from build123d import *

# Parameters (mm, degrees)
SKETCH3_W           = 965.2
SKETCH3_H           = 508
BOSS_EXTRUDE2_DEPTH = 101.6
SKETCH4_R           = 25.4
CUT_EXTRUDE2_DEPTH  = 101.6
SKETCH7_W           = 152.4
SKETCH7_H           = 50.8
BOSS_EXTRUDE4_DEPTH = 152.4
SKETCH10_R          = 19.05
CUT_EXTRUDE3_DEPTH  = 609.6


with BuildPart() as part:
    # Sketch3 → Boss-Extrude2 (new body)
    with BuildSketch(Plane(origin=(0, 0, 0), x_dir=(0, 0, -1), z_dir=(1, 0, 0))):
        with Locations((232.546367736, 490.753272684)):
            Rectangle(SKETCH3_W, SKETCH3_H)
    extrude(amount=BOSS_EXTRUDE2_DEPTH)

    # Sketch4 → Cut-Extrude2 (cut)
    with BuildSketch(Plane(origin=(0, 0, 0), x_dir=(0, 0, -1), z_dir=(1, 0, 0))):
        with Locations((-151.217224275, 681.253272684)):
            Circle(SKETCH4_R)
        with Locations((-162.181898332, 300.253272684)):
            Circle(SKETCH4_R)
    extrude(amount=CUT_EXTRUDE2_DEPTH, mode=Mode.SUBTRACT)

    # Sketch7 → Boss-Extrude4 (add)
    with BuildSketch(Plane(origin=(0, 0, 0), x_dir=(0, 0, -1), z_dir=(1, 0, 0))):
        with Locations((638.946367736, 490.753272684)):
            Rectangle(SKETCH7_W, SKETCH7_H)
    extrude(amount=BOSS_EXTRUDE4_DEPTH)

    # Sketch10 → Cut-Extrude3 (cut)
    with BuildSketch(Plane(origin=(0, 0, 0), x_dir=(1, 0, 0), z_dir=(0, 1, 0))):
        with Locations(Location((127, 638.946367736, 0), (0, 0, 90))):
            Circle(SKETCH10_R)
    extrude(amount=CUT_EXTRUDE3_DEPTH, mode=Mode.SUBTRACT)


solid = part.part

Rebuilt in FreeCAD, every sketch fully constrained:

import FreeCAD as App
import Part
import Sketcher
Q = App.Units.Quantity

doc = App.newDocument("Part")
params = doc.addObject("Spreadsheet::Sheet", "Params")
for row, (alias, value) in enumerate([
    ("sketch1_width", "20 in"),
    ("sketch1_height", "38 in"),
    ("pad1_length", "4 in"),
    ("sketch2_diameter", "2 in"),
    ("pocket1_length", "4 in"),
    ("sketch3_width", "2 in"),
    ("sketch3_height", "6 in"),
    ("pad2_length", "6 in"),
    ("sketch4_diameter", "1.5 in"),
    ("pocket2_length", "24 in"),
], start=1):
    params.set(f"A{row}", alias)
    params.set(f"B{row}", "=" + value)
    params.setAlias(f"B{row}", alias)

body = doc.addObject("PartDesign::Body", "Body")

sketch1 = body.newObject("Sketcher::SketchObject", "Sketch")
sketch1.AttachmentSupport = (doc.getObject("YZ_Plane"), [""])
sketch1.MapMode = "FlatFace"
sketch1.addGeometry(Part.LineSegment(App.Vector(745, 250, 0), App.Vector(237, 250, 0)), False)
sketch1.addGeometry(Part.LineSegment(App.Vector(237, 250, 0), App.Vector(237, -715, 0)), False)
sketch1.addGeometry(Part.LineSegment(App.Vector(237, -715, 0), App.Vector(745, -715, 0)), False)
sketch1.addGeometry(Part.LineSegment(App.Vector(745, -715, 0), App.Vector(745, 250, 0)), False)
sketch1.addConstraint(Sketcher.Constraint("Coincident", 0, 2, 1, 1))
sketch1.addConstraint(Sketcher.Constraint("Coincident", 1, 2, 2, 1))
sketch1.addConstraint(Sketcher.Constraint("Coincident", 2, 2, 3, 1))
sketch1.addConstraint(Sketcher.Constraint("Coincident", 3, 2, 0, 1))
sketch1.addConstraint(Sketcher.Constraint("Horizontal", 0))
sketch1.addConstraint(Sketcher.Constraint("Vertical", 1))
sketch1.addConstraint(Sketcher.Constraint("Horizontal", 2))
sketch1.addConstraint(Sketcher.Constraint("Vertical", 3))
sketch1.addConstraint(Sketcher.Constraint("DistanceX", 0, 2, 0, 1, Q("20 in")))
sketch1.addConstraint(Sketcher.Constraint("DistanceY", 1, 2, 1, 1, Q("38 in")))
sketch1.addConstraint(Sketcher.Constraint("DistanceX", -1, 1, 0, 2, Q("236.753273 mm")))
sketch1.addConstraint(Sketcher.Constraint("DistanceY", -1, 1, 0, 2, Q("250.053632 mm")))
sketch1.setExpression("Constraints[8]", "Params.sketch1_width")
sketch1.setExpression("Constraints[9]", "Params.sketch1_height")
pad1 = body.newObject("PartDesign::Pad", "Pad")
pad1.Profile = sketch1
pad1.setExpression("Length", "Params.pad1_length")

sketch2 = body.newObject("Sketcher::SketchObject", "Sketch001")
sketch2.AttachmentSupport = (doc.getObject("YZ_Plane"), [""])
sketch2.MapMode = "FlatFace"
sketch2.addGeometry(Part.Circle(App.Vector(681, 151, 0), App.Vector(0, 0, 1), 25), False)
sketch2.addGeometry(Part.Circle(App.Vector(300, 162, 0), App.Vector(0, 0, 1), 25), False)
sketch2.addConstraint(Sketcher.Constraint("Equal", 0, 1))
sketch2.addConstraint(Sketcher.Constraint("Diameter", 0, Q("2 in")))
sketch2.addConstraint(Sketcher.Constraint("DistanceX", 1, 3, 0, 3, Q("15 in")))
sketch2.addConstraint(Sketcher.Constraint("DistanceY", -1, 1, 1, 3, Q("162.181898 mm")))
sketch2.addConstraint(Sketcher.Constraint("DistanceX", -1, 1, 0, 3, Q("681.253273 mm")))
sketch2.addConstraint(Sketcher.Constraint("DistanceY", -1, 1, 0, 3, Q("151.217224 mm")))
sketch2.setExpression("Constraints[1]", "Params.sketch2_diameter")
pocket1 = body.newObject("PartDesign::Pocket", "Pocket")
pocket1.Profile = sketch2
pocket1.setExpression("Length", "Params.pocket1_length")
pocket1.Reversed = True

sketch3 = body.newObject("Sketcher::SketchObject", "Sketch002")
sketch3.AttachmentSupport = (doc.getObject("YZ_Plane"), [""])
sketch3.MapMode = "FlatFace"
sketch3.addGeometry(Part.LineSegment(App.Vector(516, -563, 0), App.Vector(465, -563, 0)), False)
sketch3.addGeometry(Part.LineSegment(App.Vector(465, -563, 0), App.Vector(465, -715, 0)), False)
sketch3.addGeometry(Part.LineSegment(App.Vector(465, -715, 0), App.Vector(516, -715, 0)), False)
sketch3.addGeometry(Part.LineSegment(App.Vector(516, -715, 0), App.Vector(516, -563, 0)), False)
sketch3.addConstraint(Sketcher.Constraint("Coincident", 0, 2, 1, 1))
sketch3.addConstraint(Sketcher.Constraint("Coincident", 1, 2, 2, 1))
sketch3.addConstraint(Sketcher.Constraint("Coincident", 2, 2, 3, 1))
sketch3.addConstraint(Sketcher.Constraint("Coincident", 3, 2, 0, 1))
sketch3.addConstraint(Sketcher.Constraint("Horizontal", 0))
sketch3.addConstraint(Sketcher.Constraint("Vertical", 1))
sketch3.addConstraint(Sketcher.Constraint("Horizontal", 2))
sketch3.addConstraint(Sketcher.Constraint("Vertical", 3))
sketch3.addConstraint(Sketcher.Constraint("DistanceX", 0, 2, 0, 1, Q("2 in")))
sketch3.addConstraint(Sketcher.Constraint("DistanceY", 1, 2, 1, 1, Q("6 in")))
sketch3.addConstraint(Sketcher.Constraint("DistanceX", -1, 1, 0, 2, Q("465.353273 mm")))
sketch3.addConstraint(Sketcher.Constraint("DistanceY", 0, 2, -1, 1, Q("562.746368 mm")))
sketch3.setExpression("Constraints[8]", "Params.sketch3_width")
sketch3.setExpression("Constraints[9]", "Params.sketch3_height")
pad2 = body.newObject("PartDesign::Pad", "Pad001")
pad2.Profile = sketch3
pad2.setExpression("Length", "Params.pad2_length")

sketch4 = body.newObject("Sketcher::SketchObject", "Sketch003")
sketch4.AttachmentSupport = (doc.getObject("XZ_Plane"), [""])
sketch4.MapMode = "FlatFace"
sketch4.addGeometry(Part.Circle(App.Vector(127, -639, 0), App.Vector(0, 0, 1), 19), False)
sketch4.addConstraint(Sketcher.Constraint("Diameter", 0, Q("1.5 in")))
sketch4.addConstraint(Sketcher.Constraint("DistanceX", -1, 1, 0, 3, Q("5 in")))
sketch4.addConstraint(Sketcher.Constraint("DistanceY", 0, 3, -1, 1, Q("638.946368 mm")))
sketch4.setExpression("Constraints[0]", "Params.sketch4_diameter")
pocket2 = body.newObject("PartDesign::Pocket", "Pocket001")
pocket2.Profile = sketch4
pocket2.setExpression("Length", "Params.pocket2_length")

doc.recompute()
